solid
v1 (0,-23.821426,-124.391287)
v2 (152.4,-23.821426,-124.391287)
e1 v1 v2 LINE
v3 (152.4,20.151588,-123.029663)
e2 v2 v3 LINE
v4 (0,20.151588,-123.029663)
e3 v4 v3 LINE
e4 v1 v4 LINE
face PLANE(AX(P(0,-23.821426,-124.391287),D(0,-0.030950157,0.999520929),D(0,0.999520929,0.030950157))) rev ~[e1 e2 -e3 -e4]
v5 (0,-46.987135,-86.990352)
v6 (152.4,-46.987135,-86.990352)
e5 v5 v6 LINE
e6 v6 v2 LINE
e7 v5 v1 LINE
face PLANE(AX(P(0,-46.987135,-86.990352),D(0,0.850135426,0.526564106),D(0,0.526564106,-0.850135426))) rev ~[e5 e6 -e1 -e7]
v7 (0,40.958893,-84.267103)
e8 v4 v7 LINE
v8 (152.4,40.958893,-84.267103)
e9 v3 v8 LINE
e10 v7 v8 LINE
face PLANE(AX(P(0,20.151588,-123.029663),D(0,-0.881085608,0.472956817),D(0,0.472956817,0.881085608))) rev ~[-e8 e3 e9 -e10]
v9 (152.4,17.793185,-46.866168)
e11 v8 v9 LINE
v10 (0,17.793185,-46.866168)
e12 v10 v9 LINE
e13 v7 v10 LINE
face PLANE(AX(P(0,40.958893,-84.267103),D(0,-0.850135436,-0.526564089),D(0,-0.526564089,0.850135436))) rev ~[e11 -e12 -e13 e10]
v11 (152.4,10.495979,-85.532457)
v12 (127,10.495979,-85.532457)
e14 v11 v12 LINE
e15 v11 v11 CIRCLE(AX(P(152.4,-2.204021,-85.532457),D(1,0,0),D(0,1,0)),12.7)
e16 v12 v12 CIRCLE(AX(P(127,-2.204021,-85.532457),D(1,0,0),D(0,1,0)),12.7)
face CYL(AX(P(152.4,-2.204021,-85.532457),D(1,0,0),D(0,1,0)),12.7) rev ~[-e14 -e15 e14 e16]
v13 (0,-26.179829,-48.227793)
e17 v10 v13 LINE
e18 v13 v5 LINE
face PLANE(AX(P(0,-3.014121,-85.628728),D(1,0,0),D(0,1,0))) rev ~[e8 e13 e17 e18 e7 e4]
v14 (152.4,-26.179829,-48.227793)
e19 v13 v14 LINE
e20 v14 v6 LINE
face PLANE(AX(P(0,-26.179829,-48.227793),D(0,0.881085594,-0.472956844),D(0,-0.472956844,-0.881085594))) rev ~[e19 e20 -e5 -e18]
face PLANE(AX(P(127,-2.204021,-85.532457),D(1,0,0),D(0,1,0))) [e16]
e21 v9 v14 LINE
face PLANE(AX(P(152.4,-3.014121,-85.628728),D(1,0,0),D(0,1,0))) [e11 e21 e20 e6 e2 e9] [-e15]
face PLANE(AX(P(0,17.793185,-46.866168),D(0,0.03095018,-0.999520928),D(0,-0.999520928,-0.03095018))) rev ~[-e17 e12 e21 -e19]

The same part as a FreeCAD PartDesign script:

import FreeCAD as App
import Part
import Sketcher

V = App.Vector
Q = App.Units.Quantity

doc = App.newDocument("Part")
params = doc.addObject("Spreadsheet::Sheet", "Params")
for row, (alias, value) in enumerate([
    ("pad1_length", "6 in"),
    ("sketch2_diameter", "1 in"),
    ("pocket1_length", "1 in"),
], start=1):
    params.set(f"A{row}", alias)
    params.set(f"B{row}", "=" + value)
    params.setAlias(f"B{row}", alias)

body = doc.addObject("PartDesign::Body", "Body")

sketch1 = body.newObject("Sketcher::SketchObject", "Sketch")
sketch1.AttachmentSupport = (doc.getObject("YZ_Plane"), [""])
sketch1.MapMode = "FlatFace"
sketch1.addGeometry(Part.LineSegment(V(20.151588, -123.029663, 0), V(40.958893, -84.267103, 0)), False)
sketch1.addGeometry(Part.LineSegment(V(40.958893, -84.267103, 0), V(17.793185, -46.866168, 0)), False)
sketch1.addGeometry(Part.LineSegment(V(17.793185, -46.866168, 0), V(-26.179829, -48.227793, 0)), False)
sketch1.addGeometry(Part.LineSegment(V(-26.179829, -48.227793, 0), V(-46.987135, -86.990352, 0)), False)
sketch1.addGeometry(Part.LineSegment(V(-46.987135, -86.990352, 0), V(-23.821426, -124.391287, 0)), False)
sketch1.addGeometry(Part.LineSegment(V(-23.821426, -124.391287, 0), V(20.151588, -123.029663, 0)), False)
sketch1.addConstraint(Sketcher.Constraint("Coincident", 0, 2, 1, 1))
sketch1.addConstraint(Sketcher.Constraint("Coincident", 1, 2, 2, 1))
sketch1.addConstraint(Sketcher.Constraint("Coincident", 2, 2, 3, 1))
sketch1.addConstraint(Sketcher.Constraint("Coincident", 3, 2, 4, 1))
sketch1.addConstraint(Sketcher.Constraint("Coincident", 4, 2, 5, 1))
sketch1.addConstraint(Sketcher.Constraint("Coincident", 5, 2, 0, 1))
sketch1.addConstraint(Sketcher.Constraint("Parallel", 0, 3))
sketch1.addConstraint(Sketcher.Constraint("Parallel", 1, 4))
sketch1.addConstraint(Sketcher.Constraint("Parallel", 2, 5))
sketch1.addConstraint(Sketcher.Constraint("Equal", 0, 1))
sketch1.addConstraint(Sketcher.Constraint("Equal", 1, 2))
sketch1.addConstraint(Sketcher.Constraint("Equal", 2, 3))
sketch1.addConstraint(Sketcher.Constraint("Distance", 0, Q("43.994091 mm")))
sketch1.addConstraint(Sketcher.Constraint("DistanceY", 1, 2, -1, 1, Q("46.866168 mm")))
sketch1.addConstraint(Sketcher.Constraint("DistanceX", 2, 2, -1, 1, Q("26.179829 mm")))
sketch1.addConstraint(Sketcher.Constraint("DistanceY", 3, 2, -1, 1, Q("86.990352 mm")))
sketch1.addConstraint(Sketcher.Constraint("DistanceX", -1, 1, 5, 2, Q("20.151588 mm")))
sketch1.addConstraint(Sketcher.Constraint("DistanceX", 1, 2, 0, 2, Q("23.165708 mm")))
pad1 = body.newObject("PartDesign::Pad", "Pad")
pad1.Profile = sketch1
pad1.setExpression("Length", "Params.pad1_length")

sketch2 = body.newObject("Sketcher::SketchObject", "Sketch001")
sketch2.AttachmentSupport = (doc.getObject("YZ_Plane"), [""])
sketch2.MapMode = "FlatFace"
sketch2.AttachmentOffset = App.Placement(V(0, 0, 6 * 25.4), App.Rotation())
sketch2.addGeometry(Part.Circle(V(-2.204021, -85.532457, 0), V(0, 0, 1), 12.7), False)
sketch2.addConstraint(Sketcher.Constraint("Diameter", 0, Q("1 in")))
sketch2.addConstraint(Sketcher.Constraint("DistanceX", 0, 3, -1, 1, Q("2.204021 mm")))
sketch2.addConstraint(Sketcher.Constraint("DistanceY", 0, 3, -1, 1, Q("85.532457 mm")))
sketch2.setExpression("Constraints[0]", "Params.sketch2_diameter")
pocket1 = body.newObject("PartDesign::Pocket", "Pocket")
pocket1.Profile = sketch2
pocket1.setExpression("Length", "Params.pocket1_length")

doc.recompute()
